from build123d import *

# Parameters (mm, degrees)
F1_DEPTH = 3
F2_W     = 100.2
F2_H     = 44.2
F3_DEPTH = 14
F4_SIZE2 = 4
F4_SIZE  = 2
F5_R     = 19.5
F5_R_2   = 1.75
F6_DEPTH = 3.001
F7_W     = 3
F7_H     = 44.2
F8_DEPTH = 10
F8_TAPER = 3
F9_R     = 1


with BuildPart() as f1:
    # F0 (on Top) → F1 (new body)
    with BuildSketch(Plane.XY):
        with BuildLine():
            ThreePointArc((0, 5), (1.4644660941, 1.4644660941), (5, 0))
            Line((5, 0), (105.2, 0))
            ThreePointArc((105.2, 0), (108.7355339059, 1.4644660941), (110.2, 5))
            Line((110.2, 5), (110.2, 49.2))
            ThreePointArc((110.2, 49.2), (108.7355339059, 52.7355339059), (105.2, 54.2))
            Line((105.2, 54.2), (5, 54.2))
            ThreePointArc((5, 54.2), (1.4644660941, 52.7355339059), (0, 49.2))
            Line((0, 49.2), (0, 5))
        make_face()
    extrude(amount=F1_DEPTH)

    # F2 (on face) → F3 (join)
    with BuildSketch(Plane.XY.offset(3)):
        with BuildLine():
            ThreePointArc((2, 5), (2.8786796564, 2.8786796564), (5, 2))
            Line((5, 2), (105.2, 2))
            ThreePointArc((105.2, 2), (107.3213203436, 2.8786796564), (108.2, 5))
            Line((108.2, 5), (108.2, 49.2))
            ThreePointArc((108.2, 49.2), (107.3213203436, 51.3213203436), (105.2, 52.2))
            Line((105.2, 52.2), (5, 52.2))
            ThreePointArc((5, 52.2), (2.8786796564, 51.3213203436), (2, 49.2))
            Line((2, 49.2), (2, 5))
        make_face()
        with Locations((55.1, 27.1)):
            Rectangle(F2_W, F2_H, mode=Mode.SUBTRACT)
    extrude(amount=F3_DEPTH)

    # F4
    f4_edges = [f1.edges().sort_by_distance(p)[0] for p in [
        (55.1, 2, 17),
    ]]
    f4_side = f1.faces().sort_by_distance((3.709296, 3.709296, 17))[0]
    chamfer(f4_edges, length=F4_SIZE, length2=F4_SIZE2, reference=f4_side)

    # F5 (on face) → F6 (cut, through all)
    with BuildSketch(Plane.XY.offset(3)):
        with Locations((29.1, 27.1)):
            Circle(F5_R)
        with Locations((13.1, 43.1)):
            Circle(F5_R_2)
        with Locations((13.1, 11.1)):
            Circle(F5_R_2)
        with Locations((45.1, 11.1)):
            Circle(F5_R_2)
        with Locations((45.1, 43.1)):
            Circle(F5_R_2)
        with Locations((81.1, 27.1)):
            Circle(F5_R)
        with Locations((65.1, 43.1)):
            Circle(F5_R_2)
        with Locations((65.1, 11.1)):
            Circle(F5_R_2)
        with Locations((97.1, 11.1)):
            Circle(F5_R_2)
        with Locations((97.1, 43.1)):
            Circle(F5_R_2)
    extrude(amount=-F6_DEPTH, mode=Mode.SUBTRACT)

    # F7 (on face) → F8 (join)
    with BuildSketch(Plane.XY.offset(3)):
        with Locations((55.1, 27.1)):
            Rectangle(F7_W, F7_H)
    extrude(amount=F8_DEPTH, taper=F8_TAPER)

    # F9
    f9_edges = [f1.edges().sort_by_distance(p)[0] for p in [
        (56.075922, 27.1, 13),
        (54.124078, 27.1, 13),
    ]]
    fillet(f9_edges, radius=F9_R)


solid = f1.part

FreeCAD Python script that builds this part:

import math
import FreeCAD as App
import Part
import Sketcher


def edges_at(feature, points):
    """Names of the edges that pass closest to the given points."""
    edges = feature.Shape.Edges
    near = lambda p: min(range(len(edges)), key=lambda i: edges[i].distToShape(Part.Vertex(*p))[0])
    return sorted({f"Edge{near(p) + 1}" for p in points})

doc = App.newDocument("Part")
body = doc.addObject("PartDesign::Body", "Body")

sketch1 = body.newObject("Sketcher::SketchObject", "Sketch")
sketch1.AttachmentSupport = (doc.getObject("XY_Plane"), [""])
sketch1.MapMode = "FlatFace"
sketch1.addGeometry([
    Part.ArcOfCircle(Part.Circle(App.Vector(5, 5, 0), App.Vector(0, 0, 1), 5), math.radians(180), math.radians(270)),
    Part.LineSegment(App.Vector(5, 0, 0), App.Vector(105, 0, 0)),
    Part.ArcOfCircle(Part.Circle(App.Vector(105, 5, 0), App.Vector(0, 0, 1), 5), math.radians(-90), math.radians(0)),
    Part.LineSegment(App.Vector(110, 5, 0), App.Vector(110, 49, 0)),
    Part.ArcOfCircle(Part.Circle(App.Vector(105, 49, 0), App.Vector(0, 0, 1), 5), math.radians(0), math.radians(90)),
    Part.LineSegment(App.Vector(105, 54, 0), App.Vector(5, 54, 0)),
    Part.ArcOfCircle(Part.Circle(App.Vector(5, 49, 0), App.Vector(0, 0, 1), 5), math.radians(90), math.radians(180)),
    Part.LineSegment(App.Vector(0, 49, 0), App.Vector(0, 5, 0)),
], False)
sketch1.addConstraint([
    Sketcher.Constraint("Tangent", 0, 2, 1, 1),
    Sketcher.Constraint("Tangent", 1, 2, 2, 1),
    Sketcher.Constraint("Tangent", 2, 2, 3, 1),
    Sketcher.Constraint("Tangent", 3, 2, 4, 1),
    Sketcher.Constraint("Tangent", 4, 2, 5, 1),
    Sketcher.Constraint("Tangent", 5, 2, 6, 1),
    Sketcher.Constraint("Tangent", 6, 2, 7, 1),
    Sketcher.Constraint("Tangent", 7, 2, 0, 1),
    Sketcher.Constraint("Horizontal", 1),
    Sketcher.Constraint("Vertical", 3),
    Sketcher.Constraint("Horizontal", 5),
    Sketcher.Constraint("Vertical", 7),
    Sketcher.Constraint("Equal", 0, 2),
    Sketcher.Constraint("Equal", 2, 4),
    Sketcher.Constraint("Equal", 4, 6),
    Sketcher.Constraint("PointOnObject", 0, 2, -1),
    Sketcher.Constraint("PointOnObject", 6, 2, -2),
    Sketcher.Constraint("Radius", 0, 5.0),
    Sketcher.Constraint("DistanceX", 1, 1, 1, 2, 100.2),
    Sketcher.Constraint("DistanceY", 3, 1, 3, 2, 44.2),
])
pad1 = body.newObject("PartDesign::Pad", "Pad")
pad1.Profile = sketch1
pad1.Length = 3

sketch2 = body.newObject("Sketcher::SketchObject", "Sketch001")
sketch2.AttachmentSupport = (doc.getObject("XY_Plane"), [""])
sketch2.MapMode = "FlatFace"
sketch2.AttachmentOffset = App.Placement(App.Vector(0, 0, 3), App.Rotation())
sketch2.addGeometry([
    Part.ArcOfCircle(Part.Circle(App.Vector(5, 5, 0), App.Vector(0, 0, 1), 3), math.radians(180), math.radians(270)),
    Part.LineSegment(App.Vector(5, 2, 0), App.Vector(105.2, 2, 0)),
    Part.ArcOfCircle(Part.Circle(App.Vector(105.2, 5, 0), App.Vector(0, 0, 1), 3), math.radians(-90), math.radians(0)),
    Part.LineSegment(App.Vector(108.2, 5, 0), App.Vector(108.2, 49.2, 0)),
    Part.ArcOfCircle(Part.Circle(App.Vector(105.2, 49.2, 0), App.Vector(0, 0, 1), 3), math.radians(0), math.radians(90)),
    Part.LineSegment(App.Vector(105.2, 52.2, 0), App.Vector(5, 52.2, 0)),
    Part.ArcOfCircle(Part.Circle(App.Vector(5, 49.2, 0), App.Vector(0, 0, 1), 3), math.radians(90), math.radians(180)),
    Part.LineSegment(App.Vector(2, 49.2, 0), App.Vector(2, 5, 0)),
    Part.LineSegment(App.Vector(105.2, 5, 0), App.Vector(5, 5, 0)),
    Part.LineSegment(App.Vector(5, 5, 0), App.Vector(5, 49.2, 0)),
    Part.LineSegment(App.Vector(5, 49.2, 0), App.Vector(105.2, 49.2, 0)),
    Part.LineSegment(App.Vector(105.2, 49.2, 0), App.Vector(105.2, 5, 0)),
], False)
sketch2.addConstraint([
    Sketcher.Constraint("Tangent", 0, 2, 1, 1),
    Sketcher.Constraint("Tangent", 1, 2, 2, 1),
    Sketcher.Constraint("Tangent", 2, 2, 3, 1),
    Sketcher.Constraint("Tangent", 3, 2, 4, 1),
    Sketcher.Constraint("Tangent", 4, 2, 5, 1),
    Sketcher.Constraint("Tangent", 5, 2, 6, 1),
    Sketcher.Constraint("Tangent", 6, 2, 7, 1),
    Sketcher.Constraint("Tangent", 7, 2, 0, 1),
    Sketcher.Constraint("Coincident", 8, 2, 9, 1),
    Sketcher.Constraint("Coincident", 9, 2, 10, 1),
    Sketcher.Constraint("Coincident", 10, 2, 11, 1),
    Sketcher.Constraint("Coincident", 11, 2, 8, 1),
    Sketcher.Constraint("Horizontal", 1),
    Sketcher.Constraint("Vertical", 3),
    Sketcher.Constraint("Horizontal", 5),
    Sketcher.Constraint("Vertical", 7),
    Sketcher.Constraint("Horizontal", 8),
    Sketcher.Constraint("Vertical", 9),
    Sketcher.Constraint("Horizontal", 10),
    Sketcher.Constraint("Vertical", 11),
    Sketcher.Constraint("Coincident", 8, 2, 0, 3),
    Sketcher.Constraint("Coincident", 9, 2, 6, 3),
    Sketcher.Constraint("Coincident", 10, 2, 4, 3),
    Sketcher.Constraint("Equal", 0, 2),
    Sketcher.Constraint("Radius", 0, 3.0),
    Sketcher.Constraint("DistanceX", 1, 1, 1, 2, 100.2),
    Sketcher.Constraint("DistanceY", 3, 1, 3, 2, 44.2),
    Sketcher.Constraint("DistanceX", -1, 1, 0, 3, 5.0),
    Sketcher.Constraint("DistanceY", -1, 1, 0, 3, 5.0),
])
pad2 = body.newObject("PartDesign::Pad", "Pad001")
pad2.Profile = sketch2
pad2.Length = 14
doc.recompute()

chamfer = body.newObject("PartDesign::Chamfer", "Chamfer")
chamfer.Base = (pad2, edges_at(pad2, [(55.1, 2, 17)]))
chamfer.ChamferType = "Two distances"
chamfer.Size = 2
chamfer.Size2 = 4
chamfer.FlipDirection = True

sketch3 = body.newObject("Sketcher::SketchObject", "Sketch002")
sketch3.AttachmentSupport = (doc.getObject("XY_Plane"), [""])
sketch3.MapMode = "FlatFace"
sketch3.AttachmentOffset = App.Placement(App.Vector(0, 0, 3), App.Rotation())
sketch3.addGeometry([
    Part.Circle(App.Vector(29.1, 27.1, 0), App.Vector(0, 0, 1), 19.5),
    Part.Circle(App.Vector(13.1, 43.1, 0), App.Vector(0, 0, 1), 1.8),
    Part.Circle(App.Vector(13.1, 11.1, 0), App.Vector(0, 0, 1), 1.8),
    Part.Circle(App.Vector(45.1, 11.1, 0), App.Vector(0, 0, 1), 1.8),
    Part.Circle(App.Vector(45.1, 43.1, 0), App.Vector(0, 0, 1), 1.8),
    Part.Circle(App.Vector(81.1, 27.1, 0), App.Vector(0, 0, 1), 19.5),
    Part.Circle(App.Vector(65.1, 43.1, 0), App.Vector(0, 0, 1), 1.8),
    Part.Circle(App.Vector(65.1, 11.1, 0), App.Vector(0, 0, 1), 1.8),
    Part.Circle(App.Vector(97.1, 11.1, 0), App.Vector(0, 0, 1), 1.8),
    Part.Circle(App.Vector(97.1, 43.1, 0), App.Vector(0, 0, 1), 1.8),
], False)
sketch3.addConstraint([
    Sketcher.Constraint("Equal", 1, 2),
    Sketcher.Constraint("Equal", 2, 3),
    Sketcher.Constraint("Equal", 3, 4),
    Sketcher.Constraint("Equal", 0, 5),
    Sketcher.Constraint("Equal", 4, 6),
    Sketcher.Constraint("Equal", 6, 7),
    Sketcher.Constraint("Equal", 7, 8),
    Sketcher.Constraint("Equal", 8, 9),
    Sketcher.Constraint("Horizontal", 2, 3, 3, 3),
    Sketcher.Constraint("Horizontal", 1, 3, 4, 3),
    Sketcher.Constraint("Horizontal", 0, 3, 5, 3),
    Sketcher.Constraint("Horizontal", 4, 3, 6, 3),
    Sketcher.Constraint("Horizontal", 3, 3, 7, 3),
    Sketcher.Constraint("Horizontal", 7, 3, 8, 3),
    Sketcher.Constraint("Horizontal", 6, 3, 9, 3),
    Sketcher.Constraint("Vertical", 1, 3, 2, 3),
    Sketcher.Constraint("Vertical", 3, 3, 4, 3),
    Sketcher.Constraint("Vertical", 6, 3, 7, 3),
    Sketcher.Constraint("Vertical", 8, 3, 9, 3),
    Sketcher.Constraint("Diameter", 0, 39.0),
    Sketcher.Constraint("Diameter", 1, 3.5),
    Sketcher.Constraint("DistanceX", 1, 3, 0, 3, 16.0),
    Sketcher.Constraint("DistanceY", 0, 3, 1, 3, 16.0),
    Sketcher.Constraint("DistanceY", 2, 3, 0, 3, 16.0),
    Sketcher.Constraint("DistanceX", 0, 3, 3, 3, 16.0),
    Sketcher.Constraint("DistanceX", 3, 3, 5, 3, 36.0),
    Sketcher.Constraint("DistanceX", 4, 3, 6, 3, 20.0),
    Sketcher.Constraint("DistanceX", 5, 3, 8, 3, 16.0),
    Sketcher.Constraint("DistanceX", -1, 1, 0, 3, 29.1),
    Sketcher.Constraint("DistanceY", -1, 1, 0, 3, 27.1),
])
pocket1 = body.newObject("PartDesign::Pocket", "Pocket")
pocket1.Profile = sketch3
pocket1.Type = "ThroughAll"

sketch4 = body.newObject("Sketcher::SketchObject", "Sketch003")
sketch4.AttachmentSupport = (doc.getObject("XY_Plane"), [""])
sketch4.MapMode = "FlatFace"
sketch4.AttachmentOffset = App.Placement(App.Vector(0, 0, 3), App.Rotation())
sketch4.addGeometry([
    Part.LineSegment(App.Vector(53.6, 49.2, 0), App.Vector(53.6, 5, 0)),
    Part.LineSegment(App.Vector(53.6, 5, 0), App.Vector(56.6, 5, 0)),
    Part.LineSegment(App.Vector(56.6, 5, 0), App.Vector(56.6, 49.2, 0)),
    Part.LineSegment(App.Vector(56.6, 49.2, 0), App.Vector(53.6, 49.2, 0)),
], False)
sketch4.addConstraint([
    Sketcher.Constraint("Coincident", 0, 2, 1, 1),
    Sketcher.Constraint("Coincident", 1, 2, 2, 1),
    Sketcher.Constraint("Coincident", 2, 2, 3, 1),
    Sketcher.Constraint("Coincident", 3, 2, 0, 1),
    Sketcher.Constraint("Vertical", 0),
    Sketcher.Constraint("Horizontal", 1),
    Sketcher.Constraint("Vertical", 2),
    Sketcher.Constraint("Horizontal", 3),
    Sketcher.Constraint("DistanceX", 1, 1, 1, 2, 3.0),
    Sketcher.Constraint("DistanceY", 0, 2, 0, 1, 44.2),
    Sketcher.Constraint("DistanceY", -1, 1, 0, 2, 5.0),
    Sketcher.Constraint("DistanceX", -1, 1, 0, 2, 53.6),
])
pad3 = body.newObject("PartDesign::Pad", "Pad002")
pad3.Profile = sketch4
pad3.Length = 10
pad3.TaperAngle = -3
doc.recompute()

fillet = body.newObject("PartDesign::Fillet", "Fillet")
fillet.Base = (pad3, edges_at(pad3, [(56.076, 27.1, 13), (54.124, 27.1, 13)]))
fillet.Radius = 1

doc.recompute()
